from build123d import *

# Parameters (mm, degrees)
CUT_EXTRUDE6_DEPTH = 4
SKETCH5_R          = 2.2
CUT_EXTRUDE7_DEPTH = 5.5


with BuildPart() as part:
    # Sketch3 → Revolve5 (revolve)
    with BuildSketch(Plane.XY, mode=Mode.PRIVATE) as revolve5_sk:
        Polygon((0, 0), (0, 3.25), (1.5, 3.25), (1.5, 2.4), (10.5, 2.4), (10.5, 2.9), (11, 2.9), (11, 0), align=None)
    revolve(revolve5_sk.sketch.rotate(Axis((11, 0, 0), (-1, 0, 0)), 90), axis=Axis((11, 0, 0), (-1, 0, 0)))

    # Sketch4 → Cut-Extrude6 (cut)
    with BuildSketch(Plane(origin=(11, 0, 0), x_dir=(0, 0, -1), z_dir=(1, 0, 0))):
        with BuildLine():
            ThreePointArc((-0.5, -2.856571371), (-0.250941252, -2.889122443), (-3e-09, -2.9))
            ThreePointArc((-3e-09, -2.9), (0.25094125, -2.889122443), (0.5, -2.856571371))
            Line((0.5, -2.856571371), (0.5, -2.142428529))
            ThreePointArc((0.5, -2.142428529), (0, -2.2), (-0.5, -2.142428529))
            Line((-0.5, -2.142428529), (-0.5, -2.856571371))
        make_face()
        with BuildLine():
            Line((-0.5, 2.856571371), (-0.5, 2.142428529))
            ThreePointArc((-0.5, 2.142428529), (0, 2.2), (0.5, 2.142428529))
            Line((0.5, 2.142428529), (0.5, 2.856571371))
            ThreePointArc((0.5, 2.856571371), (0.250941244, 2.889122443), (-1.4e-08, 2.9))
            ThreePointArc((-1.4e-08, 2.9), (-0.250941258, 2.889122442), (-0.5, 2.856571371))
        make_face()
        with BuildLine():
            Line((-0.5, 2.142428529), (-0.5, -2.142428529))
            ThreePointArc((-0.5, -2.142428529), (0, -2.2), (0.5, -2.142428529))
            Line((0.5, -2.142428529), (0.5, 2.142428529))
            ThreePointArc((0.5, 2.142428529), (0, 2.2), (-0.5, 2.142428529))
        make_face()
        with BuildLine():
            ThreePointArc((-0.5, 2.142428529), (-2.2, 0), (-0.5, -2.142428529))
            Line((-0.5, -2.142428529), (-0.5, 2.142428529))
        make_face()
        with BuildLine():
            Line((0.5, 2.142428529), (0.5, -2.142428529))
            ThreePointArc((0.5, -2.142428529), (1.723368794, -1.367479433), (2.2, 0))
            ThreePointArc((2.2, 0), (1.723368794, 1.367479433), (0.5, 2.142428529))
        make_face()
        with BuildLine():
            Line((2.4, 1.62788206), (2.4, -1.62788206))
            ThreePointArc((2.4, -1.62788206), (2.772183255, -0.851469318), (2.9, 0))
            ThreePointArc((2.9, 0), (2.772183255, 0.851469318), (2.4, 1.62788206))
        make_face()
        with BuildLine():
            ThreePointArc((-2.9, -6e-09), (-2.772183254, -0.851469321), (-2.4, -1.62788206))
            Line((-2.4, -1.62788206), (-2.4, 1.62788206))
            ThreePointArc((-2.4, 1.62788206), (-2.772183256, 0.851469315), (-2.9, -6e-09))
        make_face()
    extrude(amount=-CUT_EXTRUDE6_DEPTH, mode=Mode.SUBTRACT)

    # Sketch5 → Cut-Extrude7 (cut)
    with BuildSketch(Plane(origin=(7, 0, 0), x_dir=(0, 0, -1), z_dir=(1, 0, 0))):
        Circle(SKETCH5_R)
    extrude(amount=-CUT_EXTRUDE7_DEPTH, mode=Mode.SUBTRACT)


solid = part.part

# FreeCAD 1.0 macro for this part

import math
import FreeCAD as App
import Part
import Sketcher
from FreeCAD import Vector

doc = App.newDocument("Part")
params = doc.addObject("Spreadsheet::Sheet", "Params")
for row, (alias, value) in enumerate([
    ("sketch1_width", "11 mm"),
    ("sketch1_width2", "9 mm"),
    ("sketch1_width3", "0.5 mm"),
    ("sketch1_height", "2.9 mm"),
    ("sketch1_height2", "3.25 mm"),
    ("revolution_angle", "360 deg"),
    ("sketch2_radius", "2.9 mm"),
    ("sketch2_radius2", "2.2 mm"),
    ("pocket1_length", "4 mm"),
    ("sketch3_diameter", "4.4 mm"),
    ("pocket2_length", "5.5 mm"),
], start=1):
    params.set(f"A{row}", alias)
    params.set(f"B{row}", "=" + value)
    params.setAlias(f"B{row}", alias)

body = doc.addObject("PartDesign::Body", "Body")

# Sketch on XY plane
sketch1 = body.newObject("Sketcher::SketchObject", "Sketch")
sketch1.AttachmentSupport = (doc.getObject("XY_Plane"), [""])
sketch1.MapMode = "FlatFace"
sketch1.addGeometry([
    Part.LineSegment(Vector(0, 3.2, 0), Vector(0, 0, 0)),  # 0
    Part.LineSegment(Vector(0, 0, 0), Vector(11, 0, 0)),  # 1
    Part.LineSegment(Vector(11, 0, 0), Vector(11, 2.9, 0)),  # 2
    Part.LineSegment(Vector(11, 2.9, 0), Vector(10.5, 2.9, 0)),  # 3
    Part.LineSegment(Vector(10.5, 2.9, 0), Vector(10.5, 2.4, 0)),  # 4
    Part.LineSegment(Vector(10.5, 2.4, 0), Vector(1.5, 2.4, 0)),  # 5
    Part.LineSegment(Vector(1.5, 2.4, 0), Vector(1.5, 3.2, 0)),  # 6
    Part.LineSegment(Vector(1.5, 3.2, 0), Vector(0, 3.2, 0)),  # 7
], False)
sketch1.addConstraint([
    Sketcher.Constraint("Coincident", 0, 2, 1, 1),
    Sketcher.Constraint("Coincident", 1, 2, 2, 1),
    Sketcher.Constraint("Coincident", 2, 2, 3, 1),
    Sketcher.Constraint("Coincident", 3, 2, 4, 1),
    Sketcher.Constraint("Coincident", 4, 2, 5, 1),
    Sketcher.Constraint("Coincident", 5, 2, 6, 1),
    Sketcher.Constraint("Coincident", 6, 2, 7, 1),
    Sketcher.Constraint("Coincident", 7, 2, 0, 1),
    Sketcher.Constraint("Vertical", 0),
    Sketcher.Constraint("Horizontal", 1),
    Sketcher.Constraint("Vertical", 2),
    Sketcher.Constraint("Horizontal", 3),
    Sketcher.Constraint("Vertical", 4),
    Sketcher.Constraint("Horizontal", 5),
    Sketcher.Constraint("Vertical", 6),
    Sketcher.Constraint("Horizontal", 7),
    Sketcher.Constraint("Coincident", 0, 2, -1, 1),
    Sketcher.Constraint("Equal", 3, 4),
    Sketcher.Constraint("DistanceX", 1, 1, 1, 2, 11.0),
    Sketcher.Constraint("DistanceX", 5, 2, 5, 1, 9.0),
    Sketcher.Constraint("DistanceX", 3, 2, 3, 1, 0.5),
    Sketcher.Constraint("DistanceY", 2, 1, 2, 2, 2.9),
    Sketcher.Constraint("DistanceY", 0, 2, 0, 1, 3.25),
])
sketch1.setExpression("Constraints[18]", "Params.sketch1_width")
sketch1.setExpression("Constraints[19]", "Params.sketch1_width2")
sketch1.setExpression("Constraints[20]", "Params.sketch1_width3")
sketch1.setExpression("Constraints[21]", "Params.sketch1_height")
sketch1.setExpression("Constraints[22]", "Params.sketch1_height2")
revolution = body.newObject("PartDesign::Revolution", "Revolution")
revolution.Profile = sketch1
revolution.ReferenceAxis = (sketch1, ["H_Axis"])
revolution.setExpression("Angle", "Params.revolution_angle")

# Sketch on YZ plane
sketch2 = body.newObject("Sketcher::SketchObject", "Sketch001")
sketch2.AttachmentSupport = (doc.getObject("YZ_Plane"), [""])
sketch2.MapMode = "FlatFace"
sketch2.AttachmentOffset = App.Placement(Vector(0, 0, 11), App.Rotation())
sketch2.addGeometry([
    Part.ArcOfCircle(Part.Circle(Vector(0, 0, 0), Vector(0, 0, 1), 2.9), math.radians(170.07), math.radians(180)),  # 0
    Part.ArcOfCircle(Part.Circle(Vector(0, 0, 0), Vector(0, 0, 1), 2.9), math.radians(180), math.radians(189.93)),  # 1
    Part.LineSegment(Vector(-2.9, -0.5, 0), Vector(-2.1, -0.5, 0)),  # 2
    Part.ArcOfCircle(Part.Circle(Vector(0, 0, 0), Vector(0, 0, 1), 2.2), math.radians(-167), math.radians(-90)),  # 3
    Part.ArcOfCircle(Part.Circle(Vector(0, 0, 0), Vector(0, 0, 1), 2.2), math.radians(-90), math.radians(-13)),  # 4
    Part.LineSegment(Vector(2.1, -0.5, 0), Vector(2.9, -0.5, 0)),  # 5
    Part.ArcOfCircle(Part.Circle(Vector(0, 0, 0), Vector(0, 0, 1), 2.9), math.radians(-9.93), math.radians(0)),  # 6
    Part.ArcOfCircle(Part.Circle(Vector(0, 0, 0), Vector(0, 0, 1), 2.9), math.radians(0), math.radians(9.93)),  # 7
    Part.LineSegment(Vector(2.9, 0.5, 0), Vector(2.1, 0.5, 0)),  # 8
    Part.ArcOfCircle(Part.Circle(Vector(0, 0, 0), Vector(0, 0, 1), 2.2), math.radians(13), math.radians(167)),  # 9
    Part.LineSegment(Vector(-2.1, 0.5, 0), Vector(-2.9, 0.5, 0)),  # 10
    Part.LineSegment(Vector(1.6, -2.4, 0), Vector(-1.6, -2.4, 0)),  # 11
    Part.ArcOfCircle(Part.Circle(Vector(0, 0, 0), Vector(0, 0, 1), 2.9), math.radians(-124), math.radians(-90)),  # 12
    Part.ArcOfCircle(Part.Circle(Vector(0, 0, 0), Vector(0, 0, 1), 2.9), math.radians(-90), math.radians(-56)),  # 13
    Part.ArcOfCircle(Part.Circle(Vector(0, 0, 0), Vector(0, 0, 1), 2.9), math.radians(90), math.radians(124)),  # 14
    Part.LineSegment(Vector(-1.6, 2.4, 0), Vector(1.6, 2.4, 0)),  # 15
    Part.ArcOfCircle(Part.Circle(Vector(0, 0, 0), Vector(0, 0, 1), 2.9), math.radians(56), math.radians(90)),  # 16
], False)
sketch2.addConstraint([
    Sketcher.Constraint("Tangent", 0, 2, 1, 1),
    Sketcher.Constraint("Coincident", 1, 2, 2, 1),
    Sketcher.Constraint("Coincident", 2, 2, 3, 1),
    Sketcher.Constraint("Tangent", 3, 2, 4, 1),
    Sketcher.Constraint("Coincident", 4, 2, 5, 1),
    Sketcher.Constraint("Coincident", 5, 2, 6, 1),
    Sketcher.Constraint("Tangent", 6, 2, 7, 1),
    Sketcher.Constraint("Coincident", 7, 2, 8, 1),
    Sketcher.Constraint("Coincident", 8, 2, 9, 1),
    Sketcher.Constraint("Coincident", 9, 2, 10, 1),
    Sketcher.Constraint("Coincident", 10, 2, 0, 1),
    Sketcher.Constraint("Coincident", 11, 2, 12, 1),
    Sketcher.Constraint("Tangent", 12, 2, 13, 1),
    Sketcher.Constraint("Coincident", 13, 2, 11, 1),
    Sketcher.Constraint("Coincident", 14, 2, 15, 1),
    Sketcher.Constraint("Coincident", 15, 2, 16, 1),
    Sketcher.Constraint("Tangent", 16, 2, 14, 1),
    Sketcher.Constraint("Horizontal", 2),
    Sketcher.Constraint("Horizontal", 5),
    Sketcher.Constraint("Horizontal", 8),
    Sketcher.Constraint("Horizontal", 10),
    Sketcher.Constraint("Horizontal", 11),
    Sketcher.Constraint("Horizontal", 15),
    Sketcher.Constraint("Coincident", 0, 3, -1, 1),
    Sketcher.Constraint("Coincident", 3, 3, -1, 1),
    Sketcher.Constraint("Coincident", 6, 3, -1, 1),
    Sketcher.Constraint("Coincident", 9, 3, -1, 1),
    Sketcher.Constraint("Coincident", 12, 3, -1, 1),
    Sketcher.Constraint("Coincident", 14, 3, -1, 1),
    Sketcher.Constraint("Equal", 0, 1),
    Sketcher.Constraint("Equal", 3, 4),
    Sketcher.Constraint("Equal", 1, 6),
    Sketcher.Constraint("Equal", 6, 7),
    Sketcher.Constraint("Equal", 4, 9),
    Sketcher.Constraint("Equal", 7, 12),
    Sketcher.Constraint("Equal", 12, 13),
    Sketcher.Constraint("Equal", 13, 14),
    Sketcher.Constraint("Equal", 14, 16),
    Sketcher.Constraint("PointOnObject", 0, 2, -1),
    Sketcher.Constraint("PointOnObject", 3, 2, -2),
    Sketcher.Constraint("PointOnObject", 6, 2, -1),
    Sketcher.Constraint("PointOnObject", 12, 2, -2),
    Sketcher.Constraint("PointOnObject", 16, 2, -2),
    Sketcher.Constraint("Horizontal", 2, 2, 4, 2),
    Sketcher.Constraint("Horizontal", 8, 2, 9, 2),
    Sketcher.Constraint("Vertical", 5, 2, 7, 2),
    Sketcher.Constraint("Vertical", 11, 2, 14, 2),
    Sketcher.Constraint("Radius", 0, 2.9),
    Sketcher.Constraint("Radius", 3, 2.2),
    Sketcher.Constraint("DistanceY", 5, 2, 7, 2, 1.0),
    Sketcher.Constraint("DistanceY", 11, 2, -1, 1, 2.4),
])
sketch2.setExpression("Constraints[47]", "Params.sketch2_radius")
sketch2.setExpression("Constraints[48]", "Params.sketch2_radius2")
pocket1 = body.newObject("PartDesign::Pocket", "Pocket")
pocket1.Profile = sketch2
pocket1.setExpression("Length", "Params.pocket1_length")

# Sketch on YZ plane
sketch3 = body.newObject("Sketcher::SketchObject", "Sketch002")
sketch3.AttachmentSupport = (doc.getObject("YZ_Plane"), [""])
sketch3.MapMode = "FlatFace"
sketch3.AttachmentOffset = App.Placement(Vector(0, 0, 7), App.Rotation())
sketch3.addGeometry(Part.Circle(Vector(0, 0, 0), Vector(0, 0, 1), 2.2), False)
sketch3.addConstraint([
    Sketcher.Constraint("Coincident", 0, 3, -1, 1),
    Sketcher.Constraint("Diameter", 0, 4.4),
])
sketch3.setExpression("Constraints[1]", "Params.sketch3_diameter")
pocket2 = body.newObject("PartDesign::Pocket", "Pocket001")
pocket2.Profile = sketch3
pocket2.setExpression("Length", "Params.pocket2_length")

doc.recompute()
